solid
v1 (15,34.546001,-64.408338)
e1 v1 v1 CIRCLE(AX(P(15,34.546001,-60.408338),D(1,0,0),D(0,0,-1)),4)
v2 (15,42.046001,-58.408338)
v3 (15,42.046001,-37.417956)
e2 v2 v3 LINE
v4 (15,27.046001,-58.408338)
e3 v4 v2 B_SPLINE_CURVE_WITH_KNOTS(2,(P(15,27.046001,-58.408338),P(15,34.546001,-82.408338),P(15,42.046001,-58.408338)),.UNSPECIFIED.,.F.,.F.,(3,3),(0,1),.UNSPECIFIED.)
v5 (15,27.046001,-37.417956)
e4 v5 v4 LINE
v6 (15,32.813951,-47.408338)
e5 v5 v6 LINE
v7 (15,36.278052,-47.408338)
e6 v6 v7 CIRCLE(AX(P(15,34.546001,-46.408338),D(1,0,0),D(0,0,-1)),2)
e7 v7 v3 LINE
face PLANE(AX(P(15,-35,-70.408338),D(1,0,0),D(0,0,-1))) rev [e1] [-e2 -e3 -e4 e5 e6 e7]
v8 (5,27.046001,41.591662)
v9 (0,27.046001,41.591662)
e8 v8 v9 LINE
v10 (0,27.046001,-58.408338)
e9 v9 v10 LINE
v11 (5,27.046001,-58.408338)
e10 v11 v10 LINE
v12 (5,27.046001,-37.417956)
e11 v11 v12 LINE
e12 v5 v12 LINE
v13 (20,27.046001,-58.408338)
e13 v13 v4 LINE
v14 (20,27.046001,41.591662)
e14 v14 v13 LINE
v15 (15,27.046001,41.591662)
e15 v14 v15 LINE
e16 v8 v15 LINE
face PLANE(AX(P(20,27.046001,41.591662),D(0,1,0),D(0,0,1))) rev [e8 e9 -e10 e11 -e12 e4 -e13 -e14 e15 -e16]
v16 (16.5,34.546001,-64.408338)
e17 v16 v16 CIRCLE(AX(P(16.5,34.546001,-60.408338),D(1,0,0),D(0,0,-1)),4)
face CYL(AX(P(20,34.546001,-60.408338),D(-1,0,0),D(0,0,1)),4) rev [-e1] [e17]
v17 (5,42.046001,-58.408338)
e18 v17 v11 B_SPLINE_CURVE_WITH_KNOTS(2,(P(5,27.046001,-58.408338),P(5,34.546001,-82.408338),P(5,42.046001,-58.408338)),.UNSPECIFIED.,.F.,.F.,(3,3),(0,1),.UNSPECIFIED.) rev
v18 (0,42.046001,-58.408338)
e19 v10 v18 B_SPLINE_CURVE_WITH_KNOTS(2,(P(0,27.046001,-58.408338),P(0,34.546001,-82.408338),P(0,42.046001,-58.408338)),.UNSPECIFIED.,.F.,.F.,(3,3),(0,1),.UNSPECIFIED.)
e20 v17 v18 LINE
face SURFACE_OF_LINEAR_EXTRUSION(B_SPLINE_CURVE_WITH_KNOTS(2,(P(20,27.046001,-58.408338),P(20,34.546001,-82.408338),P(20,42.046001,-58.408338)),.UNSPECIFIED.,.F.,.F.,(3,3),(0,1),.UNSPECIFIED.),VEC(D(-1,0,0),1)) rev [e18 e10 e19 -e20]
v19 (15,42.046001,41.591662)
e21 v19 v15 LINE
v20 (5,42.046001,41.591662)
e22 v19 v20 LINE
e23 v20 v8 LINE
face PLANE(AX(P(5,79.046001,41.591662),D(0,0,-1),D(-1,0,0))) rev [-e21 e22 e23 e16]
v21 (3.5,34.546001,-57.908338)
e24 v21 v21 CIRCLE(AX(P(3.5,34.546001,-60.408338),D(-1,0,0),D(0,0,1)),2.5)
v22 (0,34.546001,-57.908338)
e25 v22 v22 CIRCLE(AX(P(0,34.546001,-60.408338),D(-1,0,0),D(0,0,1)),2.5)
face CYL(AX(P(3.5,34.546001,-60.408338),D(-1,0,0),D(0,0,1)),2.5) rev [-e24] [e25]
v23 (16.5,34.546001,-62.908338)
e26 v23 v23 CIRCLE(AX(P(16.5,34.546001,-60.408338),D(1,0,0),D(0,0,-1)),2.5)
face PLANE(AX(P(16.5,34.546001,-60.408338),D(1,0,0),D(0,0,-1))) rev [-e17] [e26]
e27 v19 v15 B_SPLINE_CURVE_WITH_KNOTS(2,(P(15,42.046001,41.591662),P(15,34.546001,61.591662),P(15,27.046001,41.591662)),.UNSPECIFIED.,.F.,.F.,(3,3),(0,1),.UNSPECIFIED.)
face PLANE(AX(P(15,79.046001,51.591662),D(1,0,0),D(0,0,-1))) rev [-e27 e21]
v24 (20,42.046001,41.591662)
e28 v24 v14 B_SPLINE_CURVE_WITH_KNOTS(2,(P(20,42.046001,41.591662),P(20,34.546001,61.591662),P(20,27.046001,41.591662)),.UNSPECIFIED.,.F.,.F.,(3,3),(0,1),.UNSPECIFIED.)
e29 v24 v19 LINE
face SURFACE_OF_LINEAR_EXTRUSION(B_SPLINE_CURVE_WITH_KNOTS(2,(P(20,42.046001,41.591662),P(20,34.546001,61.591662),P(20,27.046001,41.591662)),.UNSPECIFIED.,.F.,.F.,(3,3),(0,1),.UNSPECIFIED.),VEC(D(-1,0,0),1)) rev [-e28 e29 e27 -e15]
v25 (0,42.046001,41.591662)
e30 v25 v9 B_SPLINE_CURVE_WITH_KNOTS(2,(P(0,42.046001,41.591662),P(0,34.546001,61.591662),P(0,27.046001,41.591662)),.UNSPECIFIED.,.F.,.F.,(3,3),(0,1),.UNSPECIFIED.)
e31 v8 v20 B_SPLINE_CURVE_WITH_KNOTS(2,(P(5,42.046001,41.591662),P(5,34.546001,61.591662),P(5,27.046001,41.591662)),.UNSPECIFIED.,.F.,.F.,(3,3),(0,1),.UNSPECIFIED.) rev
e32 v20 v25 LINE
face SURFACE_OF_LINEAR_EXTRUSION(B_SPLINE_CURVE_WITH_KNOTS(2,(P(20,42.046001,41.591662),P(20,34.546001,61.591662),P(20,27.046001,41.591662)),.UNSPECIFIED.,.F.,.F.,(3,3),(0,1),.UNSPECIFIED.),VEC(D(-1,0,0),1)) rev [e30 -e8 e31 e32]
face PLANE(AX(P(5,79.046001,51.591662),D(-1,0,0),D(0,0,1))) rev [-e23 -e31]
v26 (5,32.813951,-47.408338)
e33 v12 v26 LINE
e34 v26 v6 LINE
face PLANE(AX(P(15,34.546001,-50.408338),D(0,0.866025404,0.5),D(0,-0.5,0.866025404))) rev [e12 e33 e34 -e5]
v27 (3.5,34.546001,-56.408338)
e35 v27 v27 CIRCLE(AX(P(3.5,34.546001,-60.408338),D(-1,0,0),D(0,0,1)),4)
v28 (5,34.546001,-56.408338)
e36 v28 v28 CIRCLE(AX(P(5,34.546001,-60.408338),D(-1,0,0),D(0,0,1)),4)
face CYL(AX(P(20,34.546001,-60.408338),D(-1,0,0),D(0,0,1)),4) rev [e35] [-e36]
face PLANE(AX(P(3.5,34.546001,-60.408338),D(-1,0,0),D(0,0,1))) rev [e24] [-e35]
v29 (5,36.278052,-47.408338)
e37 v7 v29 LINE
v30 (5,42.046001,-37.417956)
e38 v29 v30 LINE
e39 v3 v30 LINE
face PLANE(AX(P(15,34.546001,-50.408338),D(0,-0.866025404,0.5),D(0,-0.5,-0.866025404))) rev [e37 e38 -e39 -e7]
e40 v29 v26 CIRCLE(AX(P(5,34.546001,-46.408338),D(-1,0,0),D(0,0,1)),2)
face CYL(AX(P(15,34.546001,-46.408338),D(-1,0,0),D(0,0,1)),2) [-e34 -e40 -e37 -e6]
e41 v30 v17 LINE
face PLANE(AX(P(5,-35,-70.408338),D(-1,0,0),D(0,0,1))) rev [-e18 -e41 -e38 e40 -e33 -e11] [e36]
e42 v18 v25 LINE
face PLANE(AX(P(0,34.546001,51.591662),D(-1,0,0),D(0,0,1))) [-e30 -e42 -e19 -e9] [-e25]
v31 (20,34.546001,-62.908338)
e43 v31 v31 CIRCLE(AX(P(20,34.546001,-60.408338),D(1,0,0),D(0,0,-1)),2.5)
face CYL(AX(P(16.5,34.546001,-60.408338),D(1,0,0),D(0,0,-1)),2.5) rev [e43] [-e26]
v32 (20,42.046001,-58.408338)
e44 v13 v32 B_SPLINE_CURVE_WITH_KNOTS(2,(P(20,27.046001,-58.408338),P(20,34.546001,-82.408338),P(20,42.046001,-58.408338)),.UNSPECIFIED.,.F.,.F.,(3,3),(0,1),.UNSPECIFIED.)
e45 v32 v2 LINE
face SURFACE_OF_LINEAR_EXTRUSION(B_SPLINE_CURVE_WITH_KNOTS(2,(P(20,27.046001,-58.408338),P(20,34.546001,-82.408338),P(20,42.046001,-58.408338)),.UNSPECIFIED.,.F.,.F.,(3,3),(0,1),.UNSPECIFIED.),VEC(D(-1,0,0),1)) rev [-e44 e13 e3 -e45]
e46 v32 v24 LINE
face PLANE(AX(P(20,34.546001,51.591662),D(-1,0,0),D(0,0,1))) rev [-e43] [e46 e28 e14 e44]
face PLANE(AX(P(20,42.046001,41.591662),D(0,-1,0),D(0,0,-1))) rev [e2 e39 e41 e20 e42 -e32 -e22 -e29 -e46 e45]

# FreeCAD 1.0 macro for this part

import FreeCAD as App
import Part
import Sketcher
Q = App.Units.Quantity


def edges_at(feature, points):
    """Names of the edges that pass closest to the given points."""
    edges = feature.Shape.Edges
    near = lambda p: min(range(len(edges)), key=lambda i: edges[i].distToShape(Part.Vertex(*p))[0])
    return sorted({f"Edge{near(p) + 1}" for p in points})

doc = App.newDocument("Part")
body = doc.addObject("PartDesign::Body", "Body")

# Sketch on YZ plane
sketch1 = doc.addObject("Sketcher::SketchObject", "Sketch")
body.addObject(sketch1)
sketch1.AttachmentSupport = (doc.YZ_Plane, [""])
sketch1.MapMode = "FlatFace"
sketch1.addGeometry(Part.LineSegment(App.Vector(42.046001, -58.408338, 0), App.Vector(42.046001, 41.591662, 0)), False)
sketch1.addGeometry(Part.BSplineCurve([App.Vector(42.046001, 41.591662, 0), App.Vector(34.546001, 61.591662, 0), App.Vector(27.046001, 41.591662, 0)], [3, 3], [0, 1], False, 2, [1, 1, 1], False), False)
sketch1.addGeometry(Part.LineSegment(App.Vector(27.046001, 41.591662, 0), App.Vector(27.046001, -58.408338, 0)), False)
sketch1.addGeometry(Part.BSplineCurve([App.Vector(42.046001, -58.408338, 0), App.Vector(34.546001, -82.408338, 0), App.Vector(27.046001, -58.408338, 0)], [3, 3], [0, 1], False, 2, [1, 1, 1], False), False)
sketch1.addGeometry(Part.Circle(App.Vector(34.546001, -60.408338, 0), App.Vector(0, 0, 1), 4), False)
sketch1.addConstraint(Sketcher.Constraint("Block", 1))
sketch1.addConstraint(Sketcher.Constraint("Block", 3))
sketch1.addConstraint(Sketcher.Constraint("Coincident", 0, 2, 1, 1))
sketch1.addConstraint(Sketcher.Constraint("Coincident", 1, 2, 2, 1))
sketch1.addConstraint(Sketcher.Constraint("Coincident", 2, 2, 3, 2))
sketch1.addConstraint(Sketcher.Constraint("Coincident", 3, 1, 0, 1))
sketch1.addConstraint(Sketcher.Constraint("Diameter", 4, 8.0))
sketch1.addConstraint(Sketcher.Constraint("DistanceY", 4, 3, 0, 2, 102.0))
sketch1.addConstraint(Sketcher.Constraint("DistanceX", 4, 3, 0, 2, 7.5))
pad1 = doc.addObject("PartDesign::Pad", "Pad")
body.addObject(pad1)
pad1.Profile = sketch1
pad1.Length = 20

# Sketch on XZ plane
sketch2 = doc.addObject("Sketcher::SketchObject", "Sketch001")
body.addObject(sketch2)
sketch2.AttachmentSupport = (doc.XZ_Plane, [""])
sketch2.MapMode = "FlatFace"
sketch2.addGeometry(Part.LineSegment(App.Vector(5, -70, 0), App.Vector(5, -50, 0)), False)
sketch2.addGeometry(Part.LineSegment(App.Vector(5, -50, 0), App.Vector(15, -50, 0)), False)
sketch2.addGeometry(Part.LineSegment(App.Vector(15, -50, 0), App.Vector(15, -70, 0)), False)
sketch2.addGeometry(Part.LineSegment(App.Vector(15, -70, 0), App.Vector(5, -70, 0)), False)
sketch2.addConstraint(Sketcher.Constraint("Coincident", 0, 2, 1, 1))
sketch2.addConstraint(Sketcher.Constraint("Coincident", 1, 2, 2, 1))
sketch2.addConstraint(Sketcher.Constraint("Coincident", 2, 2, 3, 1))
sketch2.addConstraint(Sketcher.Constraint("Coincident", 3, 2, 0, 1))
sketch2.addConstraint(Sketcher.Constraint("Vertical", 0))
sketch2.addConstraint(Sketcher.Constraint("Horizontal", 1))
sketch2.addConstraint(Sketcher.Constraint("Vertical", 2))
sketch2.addConstraint(Sketcher.Constraint("Horizontal", 3))
sketch2.addConstraint(Sketcher.Constraint("DistanceX", 1, 1, 1, 2, 10.0))
sketch2.addConstraint(Sketcher.Constraint("DistanceY", 0, 1, 0, 2, 20.0))
sketch2.addConstraint(Sketcher.Constraint("DistanceX", -1, 1, 0, 2, 5.0))
sketch2.addConstraint(Sketcher.Constraint("DistanceY", 0, 2, -1, 1, 50.408338))
pocket1 = doc.addObject("PartDesign::Pocket", "Pocket")
body.addObject(pocket1)
pocket1.Profile = sketch2
pocket1.Type = "ThroughAll"
pocket1.Midplane = True

# Sketch on XZ plane
sketch3 = doc.addObject("Sketcher::SketchObject", "Sketch002")
body.addObject(sketch3)
sketch3.AttachmentSupport = (doc.XZ_Plane, [""])
sketch3.MapMode = "FlatFace"
sketch3.AttachmentOffset = App.Placement(App.Vector(0, 0, -27.046001), App.Rotation())
sketch3.addGeometry(Part.LineSegment(App.Vector(5, 52, 0), App.Vector(5, 42, 0)), False)
sketch3.addGeometry(Part.LineSegment(App.Vector(5, 42, 0), App.Vector(15, 42, 0)), False)
sketch3.addGeometry(Part.LineSegment(App.Vector(15, 42, 0), App.Vector(15, 52, 0)), False)
sketch3.addGeometry(Part.LineSegment(App.Vector(15, 52, 0), App.Vector(5, 52, 0)), False)
sketch3.addConstraint(Sketcher.Constraint("Coincident", 0, 2, 1, 1))
sketch3.addConstraint(Sketcher.Constraint("Coincident", 1, 2, 2, 1))
sketch3.addConstraint(Sketcher.Constraint("Coincident", 2, 2, 3, 1))
sketch3.addConstraint(Sketcher.Constraint("Coincident", 3, 2, 0, 1))
sketch3.addConstraint(Sketcher.Constraint("Vertical", 0))
sketch3.addConstraint(Sketcher.Constraint("Horizontal", 1))
sketch3.addConstraint(Sketcher.Constraint("Vertical", 2))
sketch3.addConstraint(Sketcher.Constraint("Horizontal", 3))
sketch3.addConstraint(Sketcher.Constraint("Equal", 3, 0))
sketch3.addConstraint(Sketcher.Constraint("DistanceX", 1, 1, 1, 2, 10.0))
sketch3.addConstraint(Sketcher.Constraint("DistanceX", -1, 1, 0, 2, 5.0))
sketch3.addConstraint(Sketcher.Constraint("DistanceY", -1, 1, 0, 2, 41.591662))
pocket2 = doc.addObject("PartDesign::Pocket", "Pocket001")
body.addObject(pocket2)
pocket2.Profile = sketch3
pocket2.Length = 52

# Sketch on YZ plane
sketch4 = doc.addObject("Sketcher::SketchObject", "Sketch003")
body.addObject(sketch4)
sketch4.AttachmentSupport = (doc.YZ_Plane, [""])
sketch4.MapMode = "FlatFace"
sketch4.AttachmentOffset = App.Placement(App.Vector(0, 0, 5), App.Rotation())
sketch4.addGeometry(Part.LineSegment(App.Vector(42, -50, 0), App.Vector(35, -50, 0)), False)
sketch4.addGeometry(Part.LineSegment(App.Vector(35, -50, 0), App.Vector(42, -37, 0)), False)
sketch4.addGeometry(Part.LineSegment(App.Vector(42, -37, 0), App.Vector(42, -50, 0)), False)
sketch4.addConstraint(Sketcher.Constraint("Coincident", 0, 2, 1, 1))
sketch4.addConstraint(Sketcher.Constraint("Coincident", 1, 2, 2, 1))
sketch4.addConstraint(Sketcher.Constraint("Coincident", 2, 2, 0, 1))
sketch4.addConstraint(Sketcher.Constraint("Horizontal", 0))
sketch4.addConstraint(Sketcher.Constraint("Vertical", 2))
sketch4.addConstraint(Sketcher.Constraint("Angle", 1, Q("60 deg")))
sketch4.addConstraint(Sketcher.Constraint("Distance", 1, 15.0))
sketch4.addConstraint(Sketcher.Constraint("DistanceX", -1, 1, 0, 2, 34.546001))
sketch4.addConstraint(Sketcher.Constraint("DistanceY", 0, 2, -1, 1, 50.408338))
pocket3 = doc.addObject("PartDesign::Pocket", "Pocket002")
body.addObject(pocket3)
pocket3.Profile = sketch4
pocket3.Length = 10
pocket3.Reversed = True

# Sketch on YZ plane
sketch5 = doc.addObject("Sketcher::SketchObject", "Sketch004")
body.addObject(sketch5)
sketch5.AttachmentSupport = (doc.YZ_Plane, [""])
sketch5.MapMode = "FlatFace"
sketch5.AttachmentOffset = App.Placement(App.Vector(0, 0, 5), App.Rotation())
sketch5.addGeometry(Part.LineSegment(App.Vector(35, -50, 0), App.Vector(27, -50, 0)), False)
sketch5.addGeometry(Part.LineSegment(App.Vector(27, -50, 0), App.Vector(27, -37, 0)), False)
sketch5.addGeometry(Part.LineSegment(App.Vector(27, -37, 0), App.Vector(35, -50, 0)), False)
sketch5.addConstraint(Sketcher.Constraint("Coincident", 0, 2, 1, 1))
sketch5.addConstraint(Sketcher.Constraint("Coincident", 1, 2, 2, 1))
sketch5.addConstraint(Sketcher.Constraint("Coincident", 2, 2, 0, 1))
sketch5.addConstraint(Sketcher.Constraint("Horizontal", 0))
sketch5.addConstraint(Sketcher.Constraint("Vertical", 1))
sketch5.addConstraint(Sketcher.Constraint("Angle", 2, Q("-60 deg")))
sketch5.addConstraint(Sketcher.Constraint("Distance", 2, 15.0))
sketch5.addConstraint(Sketcher.Constraint("DistanceX", -1, 1, 0, 2, 27.046001))
sketch5.addConstraint(Sketcher.Constraint("DistanceY", 0, 2, -1, 1, 50.408338))
pocket4 = doc.addObject("PartDesign::Pocket", "Pocket003")
body.addObject(pocket4)
pocket4.Profile = sketch5
pocket4.Length = 10
pocket4.Reversed = True
doc.recompute()

fillet = doc.addObject("PartDesign::Fillet", "Fillet")
body.addObject(fillet)
fillet.Base = (pocket4, edges_at(pocket4, [(10, 34.546, -50.408)]))
fillet.Radius = 2

# Sketch on YZ plane
sketch6 = doc.addObject("Sketcher::SketchObject", "Sketch005")
body.addObject(sketch6)
sketch6.AttachmentSupport = (doc.YZ_Plane, [""])
sketch6.MapMode = "FlatFace"
sketch6.addGeometry(Part.Circle(App.Vector(34.5, -60.4, 0), App.Vector(0, 0, 1), 4), False)
sketch6.addGeometry(Part.Circle(App.Vector(34.5, -60.4, 0), App.Vector(0, 0, 1), 2.5), False)
sketch6.addConstraint(Sketcher.Constraint("Coincident", 1, 3, 0, 3))
sketch6.addConstraint(Sketcher.Constraint("Diameter", 0, 8.0))
sketch6.addConstraint(Sketcher.Constraint("Diameter", 1, 5.0))
sketch6.addConstraint(Sketcher.Constraint("DistanceX", -1, 1, 0, 3, 34.546001))
sketch6.addConstraint(Sketcher.Constraint("DistanceY", 0, 3, -1, 1, 60.408338))
pad2 = doc.addObject("PartDesign::Pad", "Pad001")
body.addObject(pad2)
pad2.Profile = sketch6
pad2.Length = 3.5

# Sketch on YZ plane
sketch7 = doc.addObject("Sketcher::SketchObject", "Sketch006")
body.addObject(sketch7)
sketch7.AttachmentSupport = (doc.YZ_Plane, [""])
sketch7.MapMode = "FlatFace"
sketch7.AttachmentOffset = App.Placement(App.Vector(0, 0, 16.5), App.Rotation())
sketch7.addGeometry(Part.Circle(App.Vector(34.5, -60.4, 0), App.Vector(0, 0, 1), 4), False)
sketch7.addGeometry(Part.Circle(App.Vector(34.5, -60.4, 0), App.Vector(0, 0, 1), 2.5), False)
sketch7.addConstraint(Sketcher.Constraint("Coincident", 1, 3, 0, 3))
sketch7.addConstraint(Sketcher.Constraint("Diameter", 0, 8.0))
sketch7.addConstraint(Sketcher.Constraint("Diameter", 1, 5.0))
sketch7.addConstraint(Sketcher.Constraint("DistanceX", -1, 1, 0, 3, 34.546001))
sketch7.addConstraint(Sketcher.Constraint("DistanceY", 0, 3, -1, 1, 60.408338))
pad3 = doc.addObject("PartDesign::Pad", "Pad002")
body.addObject(pad3)
pad3.Profile = sketch7
pad3.Length = 3.5

doc.recompute()
